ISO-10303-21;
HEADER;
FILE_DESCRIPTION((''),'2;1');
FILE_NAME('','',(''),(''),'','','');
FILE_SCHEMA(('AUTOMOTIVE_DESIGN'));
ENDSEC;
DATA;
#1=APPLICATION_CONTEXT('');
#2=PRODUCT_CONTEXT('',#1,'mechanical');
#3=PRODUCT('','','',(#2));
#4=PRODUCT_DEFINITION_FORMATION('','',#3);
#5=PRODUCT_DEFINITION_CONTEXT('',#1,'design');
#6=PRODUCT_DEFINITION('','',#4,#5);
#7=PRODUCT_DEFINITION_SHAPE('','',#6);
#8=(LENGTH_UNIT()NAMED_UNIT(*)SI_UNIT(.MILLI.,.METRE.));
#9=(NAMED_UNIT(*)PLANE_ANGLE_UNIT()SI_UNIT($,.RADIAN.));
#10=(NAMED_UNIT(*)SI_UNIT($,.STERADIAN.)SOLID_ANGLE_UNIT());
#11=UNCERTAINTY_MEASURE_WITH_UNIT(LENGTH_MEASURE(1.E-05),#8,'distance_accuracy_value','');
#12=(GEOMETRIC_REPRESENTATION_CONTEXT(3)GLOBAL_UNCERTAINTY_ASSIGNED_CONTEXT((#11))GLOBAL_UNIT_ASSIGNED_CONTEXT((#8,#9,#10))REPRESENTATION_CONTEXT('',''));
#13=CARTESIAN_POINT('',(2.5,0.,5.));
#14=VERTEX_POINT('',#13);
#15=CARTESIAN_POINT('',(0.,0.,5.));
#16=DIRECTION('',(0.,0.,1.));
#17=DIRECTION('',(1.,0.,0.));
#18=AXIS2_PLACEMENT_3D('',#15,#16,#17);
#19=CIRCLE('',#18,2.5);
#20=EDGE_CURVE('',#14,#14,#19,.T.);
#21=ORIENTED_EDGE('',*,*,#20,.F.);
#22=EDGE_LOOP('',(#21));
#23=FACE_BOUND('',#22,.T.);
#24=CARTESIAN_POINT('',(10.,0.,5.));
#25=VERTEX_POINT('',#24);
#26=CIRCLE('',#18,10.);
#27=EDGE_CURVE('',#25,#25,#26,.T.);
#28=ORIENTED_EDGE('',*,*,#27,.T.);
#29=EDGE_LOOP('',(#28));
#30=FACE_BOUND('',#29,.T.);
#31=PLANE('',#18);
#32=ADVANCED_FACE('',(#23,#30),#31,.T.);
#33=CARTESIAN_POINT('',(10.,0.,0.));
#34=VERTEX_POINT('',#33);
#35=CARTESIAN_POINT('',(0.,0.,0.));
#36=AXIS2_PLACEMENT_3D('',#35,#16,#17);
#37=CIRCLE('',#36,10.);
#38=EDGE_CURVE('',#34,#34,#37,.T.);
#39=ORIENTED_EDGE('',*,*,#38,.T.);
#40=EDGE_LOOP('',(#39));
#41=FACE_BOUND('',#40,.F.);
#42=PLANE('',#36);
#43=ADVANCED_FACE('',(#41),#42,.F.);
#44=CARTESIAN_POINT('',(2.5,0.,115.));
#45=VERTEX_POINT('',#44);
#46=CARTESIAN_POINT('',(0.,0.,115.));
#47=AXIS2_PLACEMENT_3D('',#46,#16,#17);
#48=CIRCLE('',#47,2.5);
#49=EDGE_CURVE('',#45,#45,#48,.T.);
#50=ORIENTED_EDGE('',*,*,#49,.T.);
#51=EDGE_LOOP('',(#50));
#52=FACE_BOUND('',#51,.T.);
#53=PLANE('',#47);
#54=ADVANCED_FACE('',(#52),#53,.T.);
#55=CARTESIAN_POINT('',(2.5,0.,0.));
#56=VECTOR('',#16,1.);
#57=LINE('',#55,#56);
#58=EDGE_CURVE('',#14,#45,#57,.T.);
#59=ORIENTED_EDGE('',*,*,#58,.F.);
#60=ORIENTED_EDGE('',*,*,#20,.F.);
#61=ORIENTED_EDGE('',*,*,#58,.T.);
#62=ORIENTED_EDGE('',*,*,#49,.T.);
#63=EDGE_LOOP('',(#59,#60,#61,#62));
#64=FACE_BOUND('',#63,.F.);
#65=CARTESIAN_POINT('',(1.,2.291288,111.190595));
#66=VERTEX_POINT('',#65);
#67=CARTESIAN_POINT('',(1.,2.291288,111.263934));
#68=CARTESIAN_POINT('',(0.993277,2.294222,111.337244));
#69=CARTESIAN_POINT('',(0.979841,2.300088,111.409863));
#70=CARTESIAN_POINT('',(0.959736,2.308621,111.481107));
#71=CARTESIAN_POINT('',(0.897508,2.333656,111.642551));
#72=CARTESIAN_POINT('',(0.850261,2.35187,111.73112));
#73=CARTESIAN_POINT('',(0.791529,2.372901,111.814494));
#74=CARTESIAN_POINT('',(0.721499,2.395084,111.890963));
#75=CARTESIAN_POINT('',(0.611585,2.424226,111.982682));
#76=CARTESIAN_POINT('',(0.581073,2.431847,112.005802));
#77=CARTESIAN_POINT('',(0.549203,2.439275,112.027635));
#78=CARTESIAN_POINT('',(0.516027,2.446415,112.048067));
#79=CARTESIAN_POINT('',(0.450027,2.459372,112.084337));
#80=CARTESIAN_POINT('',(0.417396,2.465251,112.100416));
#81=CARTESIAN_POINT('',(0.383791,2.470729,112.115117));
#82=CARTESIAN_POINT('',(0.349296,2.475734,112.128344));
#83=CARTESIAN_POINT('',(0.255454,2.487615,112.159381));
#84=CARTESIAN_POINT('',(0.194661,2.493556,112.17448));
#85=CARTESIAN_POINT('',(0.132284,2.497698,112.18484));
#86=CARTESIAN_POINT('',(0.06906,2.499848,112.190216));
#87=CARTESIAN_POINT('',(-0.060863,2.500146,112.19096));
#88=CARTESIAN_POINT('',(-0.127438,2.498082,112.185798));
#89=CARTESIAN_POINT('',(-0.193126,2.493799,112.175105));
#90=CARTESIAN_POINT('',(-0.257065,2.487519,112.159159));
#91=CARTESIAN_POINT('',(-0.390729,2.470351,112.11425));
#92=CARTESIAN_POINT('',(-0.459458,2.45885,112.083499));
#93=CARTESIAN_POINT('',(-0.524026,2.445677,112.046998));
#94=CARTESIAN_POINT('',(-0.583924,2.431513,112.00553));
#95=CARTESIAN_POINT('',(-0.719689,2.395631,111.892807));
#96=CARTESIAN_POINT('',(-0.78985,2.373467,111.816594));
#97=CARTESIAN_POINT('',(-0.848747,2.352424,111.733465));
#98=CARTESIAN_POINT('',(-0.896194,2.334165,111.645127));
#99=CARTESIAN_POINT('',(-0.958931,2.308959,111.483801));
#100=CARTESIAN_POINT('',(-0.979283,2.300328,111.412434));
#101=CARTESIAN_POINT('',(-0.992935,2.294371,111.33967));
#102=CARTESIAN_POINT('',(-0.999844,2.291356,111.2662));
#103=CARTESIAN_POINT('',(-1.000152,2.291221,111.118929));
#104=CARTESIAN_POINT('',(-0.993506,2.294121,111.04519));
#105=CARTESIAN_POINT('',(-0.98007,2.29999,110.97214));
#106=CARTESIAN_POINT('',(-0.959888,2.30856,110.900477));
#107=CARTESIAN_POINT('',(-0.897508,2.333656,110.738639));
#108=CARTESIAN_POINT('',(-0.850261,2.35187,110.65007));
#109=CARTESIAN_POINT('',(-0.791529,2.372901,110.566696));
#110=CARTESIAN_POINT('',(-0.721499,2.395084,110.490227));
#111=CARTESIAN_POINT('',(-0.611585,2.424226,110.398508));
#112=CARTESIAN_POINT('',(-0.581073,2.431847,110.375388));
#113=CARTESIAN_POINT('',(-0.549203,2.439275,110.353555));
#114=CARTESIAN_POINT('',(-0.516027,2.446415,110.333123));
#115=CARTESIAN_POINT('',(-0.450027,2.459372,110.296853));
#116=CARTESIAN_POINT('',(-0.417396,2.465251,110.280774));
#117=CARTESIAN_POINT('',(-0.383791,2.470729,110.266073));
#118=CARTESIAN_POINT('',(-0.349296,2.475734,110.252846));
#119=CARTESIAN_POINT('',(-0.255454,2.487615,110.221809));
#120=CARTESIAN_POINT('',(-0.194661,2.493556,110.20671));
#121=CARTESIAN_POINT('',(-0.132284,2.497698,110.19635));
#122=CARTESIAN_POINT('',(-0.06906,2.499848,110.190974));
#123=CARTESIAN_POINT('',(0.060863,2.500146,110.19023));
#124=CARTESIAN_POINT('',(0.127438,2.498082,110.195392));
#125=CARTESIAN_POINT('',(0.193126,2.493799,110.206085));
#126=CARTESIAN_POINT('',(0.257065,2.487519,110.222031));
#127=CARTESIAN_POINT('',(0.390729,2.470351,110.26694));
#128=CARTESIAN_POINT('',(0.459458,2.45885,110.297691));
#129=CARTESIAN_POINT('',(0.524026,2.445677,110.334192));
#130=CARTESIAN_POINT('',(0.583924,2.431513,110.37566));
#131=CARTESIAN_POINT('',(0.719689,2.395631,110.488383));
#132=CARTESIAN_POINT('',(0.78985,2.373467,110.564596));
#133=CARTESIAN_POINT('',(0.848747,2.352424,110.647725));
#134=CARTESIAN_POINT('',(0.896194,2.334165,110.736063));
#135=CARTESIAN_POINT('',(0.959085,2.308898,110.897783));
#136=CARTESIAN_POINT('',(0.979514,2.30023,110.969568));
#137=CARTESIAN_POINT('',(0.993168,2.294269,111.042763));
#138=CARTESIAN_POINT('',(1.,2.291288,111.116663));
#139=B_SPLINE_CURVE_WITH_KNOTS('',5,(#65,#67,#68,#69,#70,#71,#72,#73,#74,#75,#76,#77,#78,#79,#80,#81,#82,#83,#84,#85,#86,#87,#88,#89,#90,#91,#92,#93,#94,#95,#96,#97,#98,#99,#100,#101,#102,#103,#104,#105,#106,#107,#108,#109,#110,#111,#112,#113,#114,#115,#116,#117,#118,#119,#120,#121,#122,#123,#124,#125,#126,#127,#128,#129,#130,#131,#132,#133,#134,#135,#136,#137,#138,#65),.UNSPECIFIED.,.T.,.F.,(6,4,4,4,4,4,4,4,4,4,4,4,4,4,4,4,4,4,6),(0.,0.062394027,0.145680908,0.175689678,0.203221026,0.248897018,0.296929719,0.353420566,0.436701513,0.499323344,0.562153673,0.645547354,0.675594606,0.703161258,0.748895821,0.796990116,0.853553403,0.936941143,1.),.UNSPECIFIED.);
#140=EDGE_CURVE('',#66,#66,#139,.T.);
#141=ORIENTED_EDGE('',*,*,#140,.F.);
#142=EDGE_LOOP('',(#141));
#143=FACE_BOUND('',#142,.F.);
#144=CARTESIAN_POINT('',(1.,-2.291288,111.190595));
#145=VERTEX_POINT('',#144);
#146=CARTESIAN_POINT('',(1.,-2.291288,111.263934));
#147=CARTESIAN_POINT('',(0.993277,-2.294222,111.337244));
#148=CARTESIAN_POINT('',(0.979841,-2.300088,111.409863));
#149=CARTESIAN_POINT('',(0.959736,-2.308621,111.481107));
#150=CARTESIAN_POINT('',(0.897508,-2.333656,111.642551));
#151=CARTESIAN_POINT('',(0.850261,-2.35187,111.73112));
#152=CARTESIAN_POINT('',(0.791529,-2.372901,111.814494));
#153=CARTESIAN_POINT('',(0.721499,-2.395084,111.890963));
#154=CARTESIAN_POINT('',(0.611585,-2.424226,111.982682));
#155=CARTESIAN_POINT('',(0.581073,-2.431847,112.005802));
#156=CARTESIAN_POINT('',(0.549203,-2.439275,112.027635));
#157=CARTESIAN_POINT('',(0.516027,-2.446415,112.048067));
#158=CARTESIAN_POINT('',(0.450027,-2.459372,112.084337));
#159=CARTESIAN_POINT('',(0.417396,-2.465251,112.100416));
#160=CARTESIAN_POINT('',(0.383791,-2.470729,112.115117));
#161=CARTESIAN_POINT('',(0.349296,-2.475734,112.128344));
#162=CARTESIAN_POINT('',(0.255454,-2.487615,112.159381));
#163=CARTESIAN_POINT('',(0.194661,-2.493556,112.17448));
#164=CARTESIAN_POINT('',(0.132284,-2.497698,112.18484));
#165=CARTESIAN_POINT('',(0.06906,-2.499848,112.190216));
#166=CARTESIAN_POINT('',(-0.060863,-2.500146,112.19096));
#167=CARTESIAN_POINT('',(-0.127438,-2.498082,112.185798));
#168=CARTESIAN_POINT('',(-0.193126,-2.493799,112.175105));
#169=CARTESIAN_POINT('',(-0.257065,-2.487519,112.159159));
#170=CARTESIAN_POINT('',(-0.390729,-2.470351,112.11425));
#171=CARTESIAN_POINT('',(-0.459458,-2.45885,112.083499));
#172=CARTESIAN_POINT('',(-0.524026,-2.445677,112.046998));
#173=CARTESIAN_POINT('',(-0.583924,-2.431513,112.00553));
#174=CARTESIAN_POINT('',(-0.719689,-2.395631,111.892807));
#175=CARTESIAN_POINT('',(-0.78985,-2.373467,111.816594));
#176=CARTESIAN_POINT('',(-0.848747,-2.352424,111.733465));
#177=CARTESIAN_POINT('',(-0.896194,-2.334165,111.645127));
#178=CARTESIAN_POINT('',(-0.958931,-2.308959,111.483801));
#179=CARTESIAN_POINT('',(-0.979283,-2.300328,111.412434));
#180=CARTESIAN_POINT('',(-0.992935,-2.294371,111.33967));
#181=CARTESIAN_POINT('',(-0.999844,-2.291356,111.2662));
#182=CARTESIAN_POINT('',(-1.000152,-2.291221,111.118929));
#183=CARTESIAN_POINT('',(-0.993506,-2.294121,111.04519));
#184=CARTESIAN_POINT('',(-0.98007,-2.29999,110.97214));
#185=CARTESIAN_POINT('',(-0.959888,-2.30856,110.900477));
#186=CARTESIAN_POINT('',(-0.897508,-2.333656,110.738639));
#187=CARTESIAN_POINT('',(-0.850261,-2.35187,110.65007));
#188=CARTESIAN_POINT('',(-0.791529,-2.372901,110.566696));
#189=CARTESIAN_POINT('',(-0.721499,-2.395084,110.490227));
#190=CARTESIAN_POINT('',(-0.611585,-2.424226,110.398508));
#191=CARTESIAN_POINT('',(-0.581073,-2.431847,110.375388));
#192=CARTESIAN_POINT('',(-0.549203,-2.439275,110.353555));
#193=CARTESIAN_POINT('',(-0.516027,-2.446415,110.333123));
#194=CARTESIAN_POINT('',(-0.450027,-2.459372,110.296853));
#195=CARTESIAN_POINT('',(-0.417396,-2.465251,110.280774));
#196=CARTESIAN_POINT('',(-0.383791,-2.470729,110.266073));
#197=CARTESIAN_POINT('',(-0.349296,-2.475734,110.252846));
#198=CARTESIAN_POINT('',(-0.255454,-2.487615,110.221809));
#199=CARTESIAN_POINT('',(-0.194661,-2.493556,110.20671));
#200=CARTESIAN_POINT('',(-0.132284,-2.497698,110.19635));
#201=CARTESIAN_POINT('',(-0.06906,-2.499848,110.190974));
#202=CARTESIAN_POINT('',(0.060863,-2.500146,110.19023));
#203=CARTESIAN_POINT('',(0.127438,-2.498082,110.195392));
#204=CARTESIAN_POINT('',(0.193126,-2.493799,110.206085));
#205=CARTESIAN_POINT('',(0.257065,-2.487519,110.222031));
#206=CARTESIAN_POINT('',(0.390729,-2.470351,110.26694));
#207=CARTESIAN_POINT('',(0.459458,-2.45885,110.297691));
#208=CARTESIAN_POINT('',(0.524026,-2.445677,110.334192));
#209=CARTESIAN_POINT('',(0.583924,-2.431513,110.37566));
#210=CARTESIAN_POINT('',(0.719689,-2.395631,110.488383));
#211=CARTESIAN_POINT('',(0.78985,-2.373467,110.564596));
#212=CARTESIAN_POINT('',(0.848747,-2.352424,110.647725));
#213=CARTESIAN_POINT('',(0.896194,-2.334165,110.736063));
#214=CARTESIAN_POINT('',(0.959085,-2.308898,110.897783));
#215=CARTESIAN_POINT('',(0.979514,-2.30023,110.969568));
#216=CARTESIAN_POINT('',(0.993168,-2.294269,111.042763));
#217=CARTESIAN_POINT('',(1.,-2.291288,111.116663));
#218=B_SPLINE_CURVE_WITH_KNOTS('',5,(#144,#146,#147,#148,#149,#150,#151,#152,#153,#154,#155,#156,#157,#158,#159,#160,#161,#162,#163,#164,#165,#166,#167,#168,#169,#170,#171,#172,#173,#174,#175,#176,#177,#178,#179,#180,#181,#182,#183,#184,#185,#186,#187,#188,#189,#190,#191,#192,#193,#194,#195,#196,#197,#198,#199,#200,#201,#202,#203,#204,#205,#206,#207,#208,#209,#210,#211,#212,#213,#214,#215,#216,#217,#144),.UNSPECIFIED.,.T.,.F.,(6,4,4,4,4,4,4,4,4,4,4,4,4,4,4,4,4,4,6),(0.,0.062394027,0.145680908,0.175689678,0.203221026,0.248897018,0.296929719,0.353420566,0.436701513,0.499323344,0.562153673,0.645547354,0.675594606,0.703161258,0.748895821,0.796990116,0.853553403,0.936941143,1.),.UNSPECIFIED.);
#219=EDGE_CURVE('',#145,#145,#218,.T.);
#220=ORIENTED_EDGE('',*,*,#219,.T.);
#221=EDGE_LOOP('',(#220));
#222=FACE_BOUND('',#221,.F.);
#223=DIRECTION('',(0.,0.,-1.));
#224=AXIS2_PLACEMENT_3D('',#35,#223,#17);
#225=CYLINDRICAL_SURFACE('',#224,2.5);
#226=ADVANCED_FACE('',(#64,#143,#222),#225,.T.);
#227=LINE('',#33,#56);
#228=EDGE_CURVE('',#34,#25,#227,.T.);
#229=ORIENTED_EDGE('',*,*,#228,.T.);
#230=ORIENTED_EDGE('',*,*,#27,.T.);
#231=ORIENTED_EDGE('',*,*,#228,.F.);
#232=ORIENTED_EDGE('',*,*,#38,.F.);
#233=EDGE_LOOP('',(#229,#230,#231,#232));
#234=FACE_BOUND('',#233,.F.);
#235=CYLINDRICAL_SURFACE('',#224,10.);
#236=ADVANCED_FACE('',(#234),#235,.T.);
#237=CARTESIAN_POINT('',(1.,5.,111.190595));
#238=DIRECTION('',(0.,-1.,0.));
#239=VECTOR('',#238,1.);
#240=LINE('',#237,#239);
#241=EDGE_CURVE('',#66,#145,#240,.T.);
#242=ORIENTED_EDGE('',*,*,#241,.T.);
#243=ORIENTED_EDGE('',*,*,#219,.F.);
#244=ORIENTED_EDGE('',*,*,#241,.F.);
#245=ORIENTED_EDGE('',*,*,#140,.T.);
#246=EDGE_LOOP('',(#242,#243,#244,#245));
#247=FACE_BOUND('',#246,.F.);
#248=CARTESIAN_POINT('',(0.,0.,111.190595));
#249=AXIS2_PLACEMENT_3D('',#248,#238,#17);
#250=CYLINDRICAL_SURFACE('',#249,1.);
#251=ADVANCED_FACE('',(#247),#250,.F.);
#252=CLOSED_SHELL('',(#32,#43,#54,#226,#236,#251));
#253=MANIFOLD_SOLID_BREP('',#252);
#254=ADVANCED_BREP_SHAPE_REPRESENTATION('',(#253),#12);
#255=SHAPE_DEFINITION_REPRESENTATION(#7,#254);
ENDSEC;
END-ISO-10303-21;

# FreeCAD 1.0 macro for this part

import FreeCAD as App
import Part
import Sketcher

V = App.Vector
Q = App.Units.Quantity

doc = App.newDocument("Part")
body = doc.addObject("PartDesign::Body", "Body")

# Sketch on XY plane
sketch1 = body.newObject("Sketcher::SketchObject", "Sketch")
sketch1.AttachmentSupport = (doc.getObject("XY_Plane"), [""])
sketch1.MapMode = "FlatFace"
sketch1.addGeometry(Part.Circle(V(0, 0, 0), V(0, 0, 1), 2.5), False)
sketch1.addConstraint(Sketcher.Constraint("Coincident", 0, 3, -1, 1))
sketch1.addConstraint(Sketcher.Constraint("Diameter", 0, Q("5 mm")))
pad1 = body.newObject("PartDesign::Pad", "Pad")
pad1.Profile = sketch1
pad1.Length = 115

# Sketch on XY plane
sketch2 = body.newObject("Sketcher::SketchObject", "Sketch001")
sketch2.AttachmentSupport = (doc.getObject("XY_Plane"), [""])
sketch2.MapMode = "FlatFace"
sketch2.addGeometry(Part.Circle(V(0, 0, 0), V(0, 0, 1), 10), False)
sketch2.addGeometry(Part.Circle(V(0, 0, 0), V(0, 0, 1), 2.5), False)
sketch2.addConstraint(Sketcher.Constraint("Coincident", 0, 3, -1, 1))
sketch2.addConstraint(Sketcher.Constraint("Coincident", 1, 3, -1, 1))
sketch2.addConstraint(Sketcher.Constraint("Diameter", 0, Q("20 mm")))
sketch2.addConstraint(Sketcher.Constraint("Diameter", 1, Q("5 mm")))
pad2 = body.newObject("PartDesign::Pad", "Pad001")
pad2.Profile = sketch2
pad2.Length = 5

# Sketch on XZ plane
sketch3 = body.newObject("Sketcher::SketchObject", "Sketch002")
sketch3.AttachmentSupport = (doc.getObject("XZ_Plane"), [""])
sketch3.MapMode = "FlatFace"
sketch3.addGeometry(Part.Circle(V(0, 111.2, 0), V(0, 0, 1), 1), False)
sketch3.addConstraint(Sketcher.Constraint("PointOnObject", 0, 3, -2))
sketch3.addConstraint(Sketcher.Constraint("Diameter", 0, Q("2 mm")))
sketch3.addConstraint(Sketcher.Constraint("DistanceY", -1, 1, 0, 3, Q("111.190595 mm")))
pocket1 = body.newObject("PartDesign::Pocket", "Pocket")
pocket1.Profile = sketch3
pocket1.Length = 10
pocket1.Midplane = True

doc.recompute()
